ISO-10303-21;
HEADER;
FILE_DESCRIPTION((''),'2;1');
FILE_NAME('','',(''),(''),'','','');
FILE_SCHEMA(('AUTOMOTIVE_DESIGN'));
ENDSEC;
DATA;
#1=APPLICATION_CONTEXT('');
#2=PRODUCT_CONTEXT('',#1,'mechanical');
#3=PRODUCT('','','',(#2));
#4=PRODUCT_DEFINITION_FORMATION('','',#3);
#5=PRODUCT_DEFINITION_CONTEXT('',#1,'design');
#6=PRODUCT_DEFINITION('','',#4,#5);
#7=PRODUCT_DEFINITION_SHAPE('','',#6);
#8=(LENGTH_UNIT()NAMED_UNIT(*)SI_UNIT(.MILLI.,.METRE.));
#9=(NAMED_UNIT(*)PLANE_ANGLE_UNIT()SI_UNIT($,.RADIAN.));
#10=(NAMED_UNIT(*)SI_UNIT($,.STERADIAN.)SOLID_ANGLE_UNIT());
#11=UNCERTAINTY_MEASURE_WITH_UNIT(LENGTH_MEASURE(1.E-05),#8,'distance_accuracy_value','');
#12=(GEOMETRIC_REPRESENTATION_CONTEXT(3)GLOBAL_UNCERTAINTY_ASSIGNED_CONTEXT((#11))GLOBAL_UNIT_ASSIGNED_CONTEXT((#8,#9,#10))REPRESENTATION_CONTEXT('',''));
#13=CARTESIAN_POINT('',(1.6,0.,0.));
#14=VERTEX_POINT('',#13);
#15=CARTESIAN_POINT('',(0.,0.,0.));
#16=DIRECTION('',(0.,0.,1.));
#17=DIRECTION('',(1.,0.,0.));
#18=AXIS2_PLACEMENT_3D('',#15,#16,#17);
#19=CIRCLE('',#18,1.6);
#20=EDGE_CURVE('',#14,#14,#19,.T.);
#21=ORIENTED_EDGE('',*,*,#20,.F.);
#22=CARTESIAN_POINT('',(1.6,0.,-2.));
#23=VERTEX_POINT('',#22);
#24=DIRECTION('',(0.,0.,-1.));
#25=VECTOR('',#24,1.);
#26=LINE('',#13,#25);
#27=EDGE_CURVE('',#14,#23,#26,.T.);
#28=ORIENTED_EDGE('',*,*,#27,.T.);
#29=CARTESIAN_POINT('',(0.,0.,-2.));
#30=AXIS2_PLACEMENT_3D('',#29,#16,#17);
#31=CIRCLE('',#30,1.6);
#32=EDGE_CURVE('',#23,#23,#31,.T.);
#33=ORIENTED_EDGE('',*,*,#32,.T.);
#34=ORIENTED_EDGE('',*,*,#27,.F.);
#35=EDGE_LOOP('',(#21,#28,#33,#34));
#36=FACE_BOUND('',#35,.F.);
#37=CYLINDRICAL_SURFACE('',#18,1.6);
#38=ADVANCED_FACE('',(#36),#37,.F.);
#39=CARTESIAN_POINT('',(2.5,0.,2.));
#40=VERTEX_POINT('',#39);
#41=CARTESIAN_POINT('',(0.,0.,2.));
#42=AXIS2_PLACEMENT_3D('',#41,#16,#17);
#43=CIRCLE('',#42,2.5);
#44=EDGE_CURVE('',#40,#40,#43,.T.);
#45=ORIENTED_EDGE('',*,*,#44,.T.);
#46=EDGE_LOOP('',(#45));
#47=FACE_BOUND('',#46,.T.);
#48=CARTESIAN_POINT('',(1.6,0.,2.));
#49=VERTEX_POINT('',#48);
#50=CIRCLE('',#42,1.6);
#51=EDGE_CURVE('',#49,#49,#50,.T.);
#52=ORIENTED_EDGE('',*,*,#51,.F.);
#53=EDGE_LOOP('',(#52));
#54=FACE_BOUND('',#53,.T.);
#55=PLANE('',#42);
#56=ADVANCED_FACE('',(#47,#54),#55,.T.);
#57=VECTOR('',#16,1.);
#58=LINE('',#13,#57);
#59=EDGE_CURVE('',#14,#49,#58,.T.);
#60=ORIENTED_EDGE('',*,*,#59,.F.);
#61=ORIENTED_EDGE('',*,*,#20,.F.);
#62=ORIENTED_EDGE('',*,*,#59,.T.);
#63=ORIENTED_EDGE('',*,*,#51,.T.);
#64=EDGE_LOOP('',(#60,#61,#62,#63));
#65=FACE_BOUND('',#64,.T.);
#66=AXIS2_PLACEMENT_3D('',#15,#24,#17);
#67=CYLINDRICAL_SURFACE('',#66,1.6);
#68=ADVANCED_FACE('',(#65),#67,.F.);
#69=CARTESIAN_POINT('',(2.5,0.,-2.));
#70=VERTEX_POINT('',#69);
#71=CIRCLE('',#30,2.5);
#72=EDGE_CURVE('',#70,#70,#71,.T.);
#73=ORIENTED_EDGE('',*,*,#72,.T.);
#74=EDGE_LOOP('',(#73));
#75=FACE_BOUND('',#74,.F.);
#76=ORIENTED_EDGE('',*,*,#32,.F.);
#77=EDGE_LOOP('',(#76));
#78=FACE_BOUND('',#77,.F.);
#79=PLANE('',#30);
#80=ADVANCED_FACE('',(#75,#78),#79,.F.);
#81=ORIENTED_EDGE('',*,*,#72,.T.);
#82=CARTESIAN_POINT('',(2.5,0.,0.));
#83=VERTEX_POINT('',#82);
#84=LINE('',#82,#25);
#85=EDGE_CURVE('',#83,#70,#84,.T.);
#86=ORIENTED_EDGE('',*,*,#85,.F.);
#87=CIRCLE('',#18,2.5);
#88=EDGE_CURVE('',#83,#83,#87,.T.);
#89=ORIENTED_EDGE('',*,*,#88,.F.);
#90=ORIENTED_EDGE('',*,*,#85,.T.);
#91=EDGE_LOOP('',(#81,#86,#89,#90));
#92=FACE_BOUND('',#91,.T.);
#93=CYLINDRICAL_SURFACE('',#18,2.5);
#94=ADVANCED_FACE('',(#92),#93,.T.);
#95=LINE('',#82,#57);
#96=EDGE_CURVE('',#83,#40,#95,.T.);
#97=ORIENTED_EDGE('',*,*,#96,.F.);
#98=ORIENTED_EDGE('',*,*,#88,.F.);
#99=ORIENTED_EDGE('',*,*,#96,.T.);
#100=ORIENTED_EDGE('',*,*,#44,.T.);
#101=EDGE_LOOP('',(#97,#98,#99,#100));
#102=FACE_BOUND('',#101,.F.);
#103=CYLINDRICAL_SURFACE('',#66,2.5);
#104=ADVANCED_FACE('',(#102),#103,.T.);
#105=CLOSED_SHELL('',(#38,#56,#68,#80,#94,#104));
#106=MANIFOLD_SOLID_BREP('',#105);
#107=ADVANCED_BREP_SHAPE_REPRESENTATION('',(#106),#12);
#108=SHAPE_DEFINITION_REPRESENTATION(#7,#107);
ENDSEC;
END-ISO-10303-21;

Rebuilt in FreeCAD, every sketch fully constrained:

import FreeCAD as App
import Part
import Sketcher
from FreeCAD import Vector

doc = App.newDocument("Part")
body = doc.addObject("PartDesign::Body", "Body")

# Sketch on XY plane
sketch1 = body.newObject("Sketcher::SketchObject", "Sketch")
sketch1.AttachmentSupport = (doc.getObject("XY_Plane"), [""])
sketch1.MapMode = "FlatFace"
sketch1.addGeometry([
    Part.Circle(Vector(0, 0, 0), Vector(0, 0, 1), 2.5),
    Part.Circle(Vector(0, 0, 0), Vector(0, 0, 1), 1.6),
], False)
sketch1.addConstraint([
    Sketcher.Constraint("Coincident", 0, 3, -1, 1),
    Sketcher.Constraint("Coincident", 1, 3, -1, 1),
    Sketcher.Constraint("Diameter", 0, 5.0),
    Sketcher.Constraint("Diameter", 1, 3.2),
])
pad1 = body.newObject("PartDesign::Pad", "Pad")
pad1.Profile = sketch1
pad1.Length = 4
pad1.Midplane = True

doc.recompute()
